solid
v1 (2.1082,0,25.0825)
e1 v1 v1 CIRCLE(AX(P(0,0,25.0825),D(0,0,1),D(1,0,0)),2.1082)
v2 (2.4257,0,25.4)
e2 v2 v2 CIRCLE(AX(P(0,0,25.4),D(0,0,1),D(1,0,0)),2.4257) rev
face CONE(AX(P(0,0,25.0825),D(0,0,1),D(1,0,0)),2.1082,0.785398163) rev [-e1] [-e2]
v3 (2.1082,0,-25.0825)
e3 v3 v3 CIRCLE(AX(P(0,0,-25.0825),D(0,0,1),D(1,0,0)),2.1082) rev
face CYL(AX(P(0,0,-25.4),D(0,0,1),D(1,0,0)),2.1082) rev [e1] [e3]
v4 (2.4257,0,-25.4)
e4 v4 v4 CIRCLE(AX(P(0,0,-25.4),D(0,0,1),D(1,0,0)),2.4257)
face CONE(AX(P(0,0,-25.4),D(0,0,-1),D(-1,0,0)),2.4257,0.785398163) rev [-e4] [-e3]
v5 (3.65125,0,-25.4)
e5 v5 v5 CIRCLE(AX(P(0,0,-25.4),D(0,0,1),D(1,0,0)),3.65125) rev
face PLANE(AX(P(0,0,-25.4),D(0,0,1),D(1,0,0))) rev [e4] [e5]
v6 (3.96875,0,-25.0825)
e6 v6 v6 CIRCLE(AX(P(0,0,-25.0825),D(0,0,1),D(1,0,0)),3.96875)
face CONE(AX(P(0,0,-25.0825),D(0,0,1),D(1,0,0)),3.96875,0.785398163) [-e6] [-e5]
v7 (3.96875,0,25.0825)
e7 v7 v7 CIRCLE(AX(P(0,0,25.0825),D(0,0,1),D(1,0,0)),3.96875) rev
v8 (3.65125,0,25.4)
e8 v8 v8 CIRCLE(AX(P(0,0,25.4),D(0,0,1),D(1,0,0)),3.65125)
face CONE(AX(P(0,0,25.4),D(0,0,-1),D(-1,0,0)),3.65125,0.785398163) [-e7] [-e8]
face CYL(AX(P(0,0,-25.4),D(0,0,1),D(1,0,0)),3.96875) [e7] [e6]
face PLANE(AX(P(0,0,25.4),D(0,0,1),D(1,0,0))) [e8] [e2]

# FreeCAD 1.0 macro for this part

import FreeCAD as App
import Part
import Sketcher
Q = App.Units.Quantity


def edges_at(feature, points):
    """Names of the edges that pass closest to the given points."""
    edges = feature.Shape.Edges
    near = lambda p: min(range(len(edges)), key=lambda i: edges[i].distToShape(Part.Vertex(*p))[0])
    return sorted({f"Edge{near(p) + 1}" for p in points})

doc = App.newDocument("Part")
body = doc.addObject("PartDesign::Body", "Body")

# Sketch on XY plane
sketch1 = doc.addObject("Sketcher::SketchObject", "Sketch")
body.addObject(sketch1)
sketch1.AttachmentSupport = (doc.XY_Plane, [""])
sketch1.MapMode = "FlatFace"
sketch1.addGeometry([
    Part.Circle(App.Vector(0, 0, 0), App.Vector(0, 0, 1), 4),
    Part.Circle(App.Vector(0, 0, 0), App.Vector(0, 0, 1), 2.1),
], False)
sketch1.addConstraint([
    Sketcher.Constraint("Coincident", 0, 3, -1, 1),
    Sketcher.Constraint("Coincident", 1, 3, -1, 1),
    Sketcher.Constraint("Diameter", 0, Q("0.3125 in")),
    Sketcher.Constraint("Diameter", 1, Q("0.166 in")),
])
pad1 = doc.addObject("PartDesign::Pad", "Pad")
body.addObject(pad1)
pad1.Profile = sketch1
pad1.Type = "TwoLengths"
pad1.Length = Q("1 in")
pad1.Length2 = Q("1 in")
doc.recompute()

chamfer = doc.addObject("PartDesign::Chamfer", "Chamfer")
body.addObject(chamfer)
chamfer.Base = (pad1, edges_at(pad1, [
    (-3.969, 0, -25.4),
    (-2.108, 0, -25.4),
    (-3.969, 0, 25.4),
    (-2.108, 0, 25.4),
]))
chamfer.Size = Q("0.0125 in")

doc.recompute()
